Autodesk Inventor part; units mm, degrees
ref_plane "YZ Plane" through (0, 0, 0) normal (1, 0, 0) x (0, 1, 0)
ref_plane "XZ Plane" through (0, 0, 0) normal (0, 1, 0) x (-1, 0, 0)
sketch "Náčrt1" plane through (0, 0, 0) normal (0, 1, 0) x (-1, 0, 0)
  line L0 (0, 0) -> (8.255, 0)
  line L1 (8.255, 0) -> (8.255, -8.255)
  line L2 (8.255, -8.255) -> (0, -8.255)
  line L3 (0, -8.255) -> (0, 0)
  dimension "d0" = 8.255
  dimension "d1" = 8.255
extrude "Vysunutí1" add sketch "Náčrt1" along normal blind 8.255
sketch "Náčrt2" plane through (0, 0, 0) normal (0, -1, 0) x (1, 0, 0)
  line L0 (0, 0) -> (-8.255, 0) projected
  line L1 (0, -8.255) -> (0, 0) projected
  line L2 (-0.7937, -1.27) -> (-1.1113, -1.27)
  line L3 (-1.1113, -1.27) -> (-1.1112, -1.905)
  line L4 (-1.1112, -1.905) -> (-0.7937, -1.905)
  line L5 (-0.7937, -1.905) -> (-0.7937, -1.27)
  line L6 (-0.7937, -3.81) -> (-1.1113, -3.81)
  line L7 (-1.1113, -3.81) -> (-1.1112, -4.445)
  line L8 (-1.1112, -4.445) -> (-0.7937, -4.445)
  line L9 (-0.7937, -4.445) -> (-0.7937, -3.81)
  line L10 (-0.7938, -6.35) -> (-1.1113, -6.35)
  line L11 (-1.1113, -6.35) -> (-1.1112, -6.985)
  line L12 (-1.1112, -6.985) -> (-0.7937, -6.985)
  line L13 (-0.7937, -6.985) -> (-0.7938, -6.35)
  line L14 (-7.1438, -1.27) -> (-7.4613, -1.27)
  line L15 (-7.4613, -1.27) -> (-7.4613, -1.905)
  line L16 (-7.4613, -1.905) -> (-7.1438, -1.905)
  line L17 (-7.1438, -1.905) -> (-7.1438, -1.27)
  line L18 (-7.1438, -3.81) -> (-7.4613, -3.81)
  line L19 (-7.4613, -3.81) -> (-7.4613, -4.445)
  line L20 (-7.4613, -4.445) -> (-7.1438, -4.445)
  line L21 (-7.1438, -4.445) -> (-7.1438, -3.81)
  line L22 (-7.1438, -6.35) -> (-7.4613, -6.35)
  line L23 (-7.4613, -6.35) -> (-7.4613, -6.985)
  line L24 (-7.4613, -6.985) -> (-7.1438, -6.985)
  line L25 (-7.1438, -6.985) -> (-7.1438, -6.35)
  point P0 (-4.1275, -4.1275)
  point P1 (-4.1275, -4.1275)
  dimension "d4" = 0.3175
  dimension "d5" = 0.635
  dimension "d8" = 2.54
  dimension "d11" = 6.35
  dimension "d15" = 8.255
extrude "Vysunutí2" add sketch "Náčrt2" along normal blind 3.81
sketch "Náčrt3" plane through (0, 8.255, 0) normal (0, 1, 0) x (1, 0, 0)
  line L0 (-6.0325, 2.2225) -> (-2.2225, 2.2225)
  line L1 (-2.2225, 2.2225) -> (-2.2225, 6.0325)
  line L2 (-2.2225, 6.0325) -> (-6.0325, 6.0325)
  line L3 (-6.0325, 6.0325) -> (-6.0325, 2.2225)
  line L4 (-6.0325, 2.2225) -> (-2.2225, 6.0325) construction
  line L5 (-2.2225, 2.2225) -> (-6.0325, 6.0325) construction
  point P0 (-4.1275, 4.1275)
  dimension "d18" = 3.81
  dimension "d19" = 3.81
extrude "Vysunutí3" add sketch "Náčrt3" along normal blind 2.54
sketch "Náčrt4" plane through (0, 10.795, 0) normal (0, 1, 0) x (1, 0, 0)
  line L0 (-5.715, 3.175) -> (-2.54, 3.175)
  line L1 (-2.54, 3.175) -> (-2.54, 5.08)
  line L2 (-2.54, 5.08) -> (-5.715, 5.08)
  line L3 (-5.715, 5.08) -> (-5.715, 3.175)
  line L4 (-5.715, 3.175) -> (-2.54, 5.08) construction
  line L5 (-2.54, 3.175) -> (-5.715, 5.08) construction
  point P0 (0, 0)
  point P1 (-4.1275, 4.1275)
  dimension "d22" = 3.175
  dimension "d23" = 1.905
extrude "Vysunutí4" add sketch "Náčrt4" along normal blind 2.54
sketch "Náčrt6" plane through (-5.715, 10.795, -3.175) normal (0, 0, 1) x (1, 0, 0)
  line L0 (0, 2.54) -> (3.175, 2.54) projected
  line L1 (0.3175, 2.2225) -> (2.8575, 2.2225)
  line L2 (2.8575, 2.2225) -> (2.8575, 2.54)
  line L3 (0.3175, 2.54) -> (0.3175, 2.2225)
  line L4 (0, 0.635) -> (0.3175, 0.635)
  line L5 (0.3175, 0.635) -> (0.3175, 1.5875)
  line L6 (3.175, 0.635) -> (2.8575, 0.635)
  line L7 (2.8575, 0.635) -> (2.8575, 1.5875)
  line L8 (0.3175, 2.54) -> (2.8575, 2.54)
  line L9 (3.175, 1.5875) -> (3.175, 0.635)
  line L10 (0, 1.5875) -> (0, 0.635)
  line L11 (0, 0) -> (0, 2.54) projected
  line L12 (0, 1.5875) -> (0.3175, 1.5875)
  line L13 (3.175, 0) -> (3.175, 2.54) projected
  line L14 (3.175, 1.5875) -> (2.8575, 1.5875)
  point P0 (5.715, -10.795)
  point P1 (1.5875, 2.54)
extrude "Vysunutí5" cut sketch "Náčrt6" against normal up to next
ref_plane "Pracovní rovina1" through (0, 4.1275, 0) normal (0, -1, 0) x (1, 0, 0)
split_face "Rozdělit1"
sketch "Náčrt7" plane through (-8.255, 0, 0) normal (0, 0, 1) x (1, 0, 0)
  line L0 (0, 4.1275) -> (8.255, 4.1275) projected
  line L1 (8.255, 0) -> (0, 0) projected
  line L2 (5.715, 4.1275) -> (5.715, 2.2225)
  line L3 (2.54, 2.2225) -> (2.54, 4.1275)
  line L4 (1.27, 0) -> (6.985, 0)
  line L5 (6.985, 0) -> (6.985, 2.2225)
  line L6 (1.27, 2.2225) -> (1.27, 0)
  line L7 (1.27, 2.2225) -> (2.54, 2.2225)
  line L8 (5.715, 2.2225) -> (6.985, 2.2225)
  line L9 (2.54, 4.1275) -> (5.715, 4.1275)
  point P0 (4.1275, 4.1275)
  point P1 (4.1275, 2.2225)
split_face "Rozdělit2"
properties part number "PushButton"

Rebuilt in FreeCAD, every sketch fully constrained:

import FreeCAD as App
import Part
import Sketcher
Q = App.Units.Quantity

doc = App.newDocument("Part")
body = doc.addObject("PartDesign::Body", "Body")

# Sketch on XZ plane
sketch1 = body.newObject("Sketcher::SketchObject", "Sketch")
sketch1.AttachmentSupport = (doc.getObject("XZ_Plane"), [""])
sketch1.MapMode = "FlatFace"
sketch1.addGeometry(Part.LineSegment(App.Vector(-8, 0, 0), App.Vector(0, 0, 0)), False)
sketch1.addGeometry(Part.LineSegment(App.Vector(0, 0, 0), App.Vector(0, -8, 0)), False)
sketch1.addGeometry(Part.LineSegment(App.Vector(0, -8, 0), App.Vector(-8, -8, 0)), False)
sketch1.addGeometry(Part.LineSegment(App.Vector(-8, -8, 0), App.Vector(-8, 0, 0)), False)
sketch1.addConstraint(Sketcher.Constraint("Coincident", 0, 2, 1, 1))
sketch1.addConstraint(Sketcher.Constraint("Coincident", 1, 2, 2, 1))
sketch1.addConstraint(Sketcher.Constraint("Coincident", 2, 2, 3, 1))
sketch1.addConstraint(Sketcher.Constraint("Coincident", 3, 2, 0, 1))
sketch1.addConstraint(Sketcher.Constraint("Horizontal", 0))
sketch1.addConstraint(Sketcher.Constraint("Vertical", 1))
sketch1.addConstraint(Sketcher.Constraint("Horizontal", 2))
sketch1.addConstraint(Sketcher.Constraint("Vertical", 3))
sketch1.addConstraint(Sketcher.Constraint("Coincident", 0, 2, -1, 1))
sketch1.addConstraint(Sketcher.Constraint("Equal", 2, 1))
sketch1.addConstraint(Sketcher.Constraint("DistanceX", 0, 1, 0, 2, Q("0.325 in")))
pad1 = body.newObject("PartDesign::Pad", "Pad")
pad1.Profile = sketch1
pad1.Length = Q("0.325 in")
pad1.Reversed = True

# Sketch on XZ plane
sketch2 = body.newObject("Sketcher::SketchObject", "Sketch001")
sketch2.AttachmentSupport = (doc.getObject("XZ_Plane"), [""])
sketch2.MapMode = "FlatFace"
sketch2.addGeometry(Part.LineSegment(App.Vector(-0.79, -1.91, 0), App.Vector(-0.79, -1.27, 0)), False)
sketch2.addGeometry(Part.LineSegment(App.Vector(-0.79, -1.27, 0), App.Vector(-1.11, -1.27, 0)), False)
sketch2.addGeometry(Part.LineSegment(App.Vector(-1.11, -1.27, 0), App.Vector(-1.11, -1.91, 0)), False)
sketch2.addGeometry(Part.LineSegment(App.Vector(-1.11, -1.91, 0), App.Vector(-0.79, -1.91, 0)), False)
sketch2.addGeometry(Part.LineSegment(App.Vector(-0.79, -4.45, 0), App.Vector(-0.79, -3.81, 0)), False)
sketch2.addGeometry(Part.LineSegment(App.Vector(-0.79, -3.81, 0), App.Vector(-1.11, -3.81, 0)), False)
sketch2.addGeometry(Part.LineSegment(App.Vector(-1.11, -3.81, 0), App.Vector(-1.11, -4.45, 0)), False)
sketch2.addGeometry(Part.LineSegment(App.Vector(-1.11, -4.45, 0), App.Vector(-0.79, -4.45, 0)), False)
sketch2.addGeometry(Part.LineSegment(App.Vector(-0.79, -6.99, 0), App.Vector(-0.79, -6.35, 0)), False)
sketch2.addGeometry(Part.LineSegment(App.Vector(-0.79, -6.35, 0), App.Vector(-1.11, -6.35, 0)), False)
sketch2.addGeometry(Part.LineSegment(App.Vector(-1.11, -6.35, 0), App.Vector(-1.11, -6.99, 0)), False)
sketch2.addGeometry(Part.LineSegment(App.Vector(-1.11, -6.99, 0), App.Vector(-0.79, -6.99, 0)), False)
sketch2.addGeometry(Part.LineSegment(App.Vector(-7.14, -1.91, 0), App.Vector(-7.14, -1.27, 0)), False)
sketch2.addGeometry(Part.LineSegment(App.Vector(-7.14, -1.27, 0), App.Vector(-7.46, -1.27, 0)), False)
sketch2.addGeometry(Part.LineSegment(App.Vector(-7.46, -1.27, 0), App.Vector(-7.46, -1.91, 0)), False)
sketch2.addGeometry(Part.LineSegment(App.Vector(-7.46, -1.91, 0), App.Vector(-7.14, -1.91, 0)), False)
sketch2.addGeometry(Part.LineSegment(App.Vector(-7.14, -4.45, 0), App.Vector(-7.14, -3.81, 0)), False)
sketch2.addGeometry(Part.LineSegment(App.Vector(-7.14, -3.81, 0), App.Vector(-7.46, -3.81, 0)), False)
sketch2.addGeometry(Part.LineSegment(App.Vector(-7.46, -3.81, 0), App.Vector(-7.46, -4.45, 0)), False)
sketch2.addGeometry(Part.LineSegment(App.Vector(-7.46, -4.45, 0), App.Vector(-7.14, -4.45, 0)), False)
sketch2.addGeometry(Part.LineSegment(App.Vector(-7.14, -6.99, 0), App.Vector(-7.14, -6.35, 0)), False)
sketch2.addGeometry(Part.LineSegment(App.Vector(-7.14, -6.35, 0), App.Vector(-7.46, -6.35, 0)), False)
sketch2.addGeometry(Part.LineSegment(App.Vector(-7.46, -6.35, 0), App.Vector(-7.46, -6.99, 0)), False)
sketch2.addGeometry(Part.LineSegment(App.Vector(-7.46, -6.99, 0), App.Vector(-7.14, -6.99, 0)), False)
sketch2.addConstraint(Sketcher.Constraint("Coincident", 0, 2, 1, 1))
sketch2.addConstraint(Sketcher.Constraint("Coincident", 1, 2, 2, 1))
sketch2.addConstraint(Sketcher.Constraint("Coincident", 2, 2, 3, 1))
sketch2.addConstraint(Sketcher.Constraint("Coincident", 3, 2, 0, 1))
sketch2.addConstraint(Sketcher.Constraint("Coincident", 4, 2, 5, 1))
sketch2.addConstraint(Sketcher.Constraint("Coincident", 5, 2, 6, 1))
sketch2.addConstraint(Sketcher.Constraint("Coincident", 6, 2, 7, 1))
sketch2.addConstraint(Sketcher.Constraint("Coincident", 7, 2, 4, 1))
sketch2.addConstraint(Sketcher.Constraint("Coincident", 8, 2, 9, 1))
sketch2.addConstraint(Sketcher.Constraint("Coincident", 9, 2, 10, 1))
sketch2.addConstraint(Sketcher.Constraint("Coincident", 10, 2, 11, 1))
sketch2.addConstraint(Sketcher.Constraint("Coincident", 11, 2, 8, 1))
sketch2.addConstraint(Sketcher.Constraint("Coincident", 12, 2, 13, 1))
sketch2.addConstraint(Sketcher.Constraint("Coincident", 13, 2, 14, 1))
sketch2.addConstraint(Sketcher.Constraint("Coincident", 14, 2, 15, 1))
sketch2.addConstraint(Sketcher.Constraint("Coincident", 15, 2, 12, 1))
sketch2.addConstraint(Sketcher.Constraint("Coincident", 16, 2, 17, 1))
sketch2.addConstraint(Sketcher.Constraint("Coincident", 17, 2, 18, 1))
sketch2.addConstraint(Sketcher.Constraint("Coincident", 18, 2, 19, 1))
sketch2.addConstraint(Sketcher.Constraint("Coincident", 19, 2, 16, 1))
sketch2.addConstraint(Sketcher.Constraint("Coincident", 20, 2, 21, 1))
sketch2.addConstraint(Sketcher.Constraint("Coincident", 21, 2, 22, 1))
sketch2.addConstraint(Sketcher.Constraint("Coincident", 22, 2, 23, 1))
sketch2.addConstraint(Sketcher.Constraint("Coincident", 23, 2, 20, 1))
sketch2.addConstraint(Sketcher.Constraint("Vertical", 0))
sketch2.addConstraint(Sketcher.Constraint("Horizontal", 1))
sketch2.addConstraint(Sketcher.Constraint("Vertical", 2))
sketch2.addConstraint(Sketcher.Constraint("Horizontal", 3))
sketch2.addConstraint(Sketcher.Constraint("Vertical", 4))
sketch2.addConstraint(Sketcher.Constraint("Horizontal", 5))
sketch2.addConstraint(Sketcher.Constraint("Vertical", 6))
sketch2.addConstraint(Sketcher.Constraint("Horizontal", 7))
sketch2.addConstraint(Sketcher.Constraint("Vertical", 8))
sketch2.addConstraint(Sketcher.Constraint("Horizontal", 9))
sketch2.addConstraint(Sketcher.Constraint("Vertical", 10))
sketch2.addConstraint(Sketcher.Constraint("Horizontal", 11))
sketch2.addConstraint(Sketcher.Constraint("Vertical", 12))
sketch2.addConstraint(Sketcher.Constraint("Horizontal", 13))
sketch2.addConstraint(Sketcher.Constraint("Vertical", 14))
sketch2.addConstraint(Sketcher.Constraint("Horizontal", 15))
sketch2.addConstraint(Sketcher.Constraint("Vertical", 16))
sketch2.addConstraint(Sketcher.Constraint("Horizontal", 17))
sketch2.addConstraint(Sketcher.Constraint("Vertical", 18))
sketch2.addConstraint(Sketcher.Constraint("Horizontal", 19))
sketch2.addConstraint(Sketcher.Constraint("Vertical", 20))
sketch2.addConstraint(Sketcher.Constraint("Horizontal", 21))
sketch2.addConstraint(Sketcher.Constraint("Vertical", 22))
sketch2.addConstraint(Sketcher.Constraint("Horizontal", 23))
sketch2.addConstraint(Sketcher.Constraint("Horizontal", 1, 2, 12, 2))
sketch2.addConstraint(Sketcher.Constraint("Horizontal", 3, 2, 14, 2))
sketch2.addConstraint(Sketcher.Constraint("Horizontal", 5, 2, 16, 2))
sketch2.addConstraint(Sketcher.Constraint("Horizontal", 7, 2, 18, 2))
sketch2.addConstraint(Sketcher.Constraint("Horizontal", 9, 2, 20, 2))
sketch2.addConstraint(Sketcher.Constraint("Horizontal", 11, 2, 22, 2))
sketch2.addConstraint(Sketcher.Constraint("Vertical", 3, 2, 4, 2))
sketch2.addConstraint(Sketcher.Constraint("Vertical", 2, 2, 5, 2))
sketch2.addConstraint(Sketcher.Constraint("Vertical", 7, 2, 8, 2))
sketch2.addConstraint(Sketcher.Constraint("Vertical", 6, 2, 9, 2))
sketch2.addConstraint(Sketcher.Constraint("Vertical", 15, 2, 16, 2))
sketch2.addConstraint(Sketcher.Constraint("Vertical", 14, 2, 17, 2))
sketch2.addConstraint(Sketcher.Constraint("Vertical", 19, 2, 20, 2))
sketch2.addConstraint(Sketcher.Constraint("Vertical", 18, 2, 21, 2))
sketch2.addConstraint(Sketcher.Constraint("Equal", 11, 13))
sketch2.addConstraint(Sketcher.Constraint("Equal", 2, 4))
sketch2.addConstraint(Sketcher.Constraint("Equal", 6, 8))
sketch2.addConstraint(Sketcher.Constraint("DistanceY", 4, 2, 0, 2, Q("0.1 in")))
sketch2.addConstraint(Sketcher.Constraint("DistanceY", 8, 2, 4, 2, Q("0.1 in")))
sketch2.addConstraint(Sketcher.Constraint("DistanceY", 0, 1, 0, 2, Q("0.025 in")))
sketch2.addConstraint(Sketcher.Constraint("DistanceY", 8, 2, -1, 1, Q("0.25 in")))
sketch2.addConstraint(Sketcher.Constraint("DistanceX", 12, 2, 0, 2, Q("0.25 in")))
sketch2.addConstraint(Sketcher.Constraint("DistanceX", 1, 2, 1, 1, Q("0.0125 in")))
sketch2.addConstraint(Sketcher.Constraint("DistanceX", 0, 2, -1, 1, Q("0.031248 in")))
pad2 = body.newObject("PartDesign::Pad", "Pad001")
pad2.Profile = sketch2
pad2.Length = Q("0.15 in")

# Sketch on XZ plane
sketch3 = body.newObject("Sketcher::SketchObject", "Sketch002")
sketch3.AttachmentSupport = (doc.getObject("XZ_Plane"), [""])
sketch3.MapMode = "FlatFace"
sketch3.AttachmentOffset = App.Placement(App.Vector(0, 0, -0.325 * 25.4), App.Rotation())
sketch3.addGeometry(Part.LineSegment(App.Vector(-6, -6, 0), App.Vector(-6, -2.2, 0)), False)
sketch3.addGeometry(Part.LineSegment(App.Vector(-6, -2.2, 0), App.Vector(-2.2, -2.2, 0)), False)
sketch3.addGeometry(Part.LineSegment(App.Vector(-2.2, -2.2, 0), App.Vector(-2.2, -6, 0)), False)
sketch3.addGeometry(Part.LineSegment(App.Vector(-2.2, -6, 0), App.Vector(-6, -6, 0)), False)
sketch3.addConstraint(Sketcher.Constraint("Coincident", 0, 2, 1, 1))
sketch3.addConstraint(Sketcher.Constraint("Coincident", 1, 2, 2, 1))
sketch3.addConstraint(Sketcher.Constraint("Coincident", 2, 2, 3, 1))
sketch3.addConstraint(Sketcher.Constraint("Coincident", 3, 2, 0, 1))
sketch3.addConstraint(Sketcher.Constraint("Vertical", 0))
sketch3.addConstraint(Sketcher.Constraint("Horizontal", 1))
sketch3.addConstraint(Sketcher.Constraint("Vertical", 2))
sketch3.addConstraint(Sketcher.Constraint("Horizontal", 3))
sketch3.addConstraint(Sketcher.Constraint("Equal", 3, 0))
sketch3.addConstraint(Sketcher.Constraint("DistanceX", 1, 1, 1, 2, Q("0.15 in")))
sketch3.addConstraint(Sketcher.Constraint("DistanceX", 0, 2, -1, 1, Q("0.2375 in")))
sketch3.addConstraint(Sketcher.Constraint("DistanceY", 0, 2, -1, 1, Q("0.0875 in")))
pad3 = body.newObject("PartDesign::Pad", "Pad002")
pad3.Profile = sketch3
pad3.Length = Q("0.1 in")
pad3.Reversed = True

# Sketch on XZ plane
sketch4 = body.newObject("Sketcher::SketchObject", "Sketch003")
sketch4.AttachmentSupport = (doc.getObject("XZ_Plane"), [""])
sketch4.MapMode = "FlatFace"
sketch4.AttachmentOffset = App.Placement(App.Vector(0, 0, -0.425 * 25.4), App.Rotation())
sketch4.addGeometry(Part.LineSegment(App.Vector(-5.7, -5.1, 0), App.Vector(-5.7, -3.2, 0)), False)
sketch4.addGeometry(Part.LineSegment(App.Vector(-5.7, -3.2, 0), App.Vector(-2.5, -3.2, 0)), False)
sketch4.addGeometry(Part.LineSegment(App.Vector(-2.5, -3.2, 0), App.Vector(-2.5, -5.1, 0)), False)
sketch4.addGeometry(Part.LineSegment(App.Vector(-2.5, -5.1, 0), App.Vector(-5.7, -5.1, 0)), False)
sketch4.addConstraint(Sketcher.Constraint("Coincident", 0, 2, 1, 1))
sketch4.addConstraint(Sketcher.Constraint("Coincident", 1, 2, 2, 1))
sketch4.addConstraint(Sketcher.Constraint("Coincident", 2, 2, 3, 1))
sketch4.addConstraint(Sketcher.Constraint("Coincident", 3, 2, 0, 1))
sketch4.addConstraint(Sketcher.Constraint("Vertical", 0))
sketch4.addConstraint(Sketcher.Constraint("Horizontal", 1))
sketch4.addConstraint(Sketcher.Constraint("Vertical", 2))
sketch4.addConstraint(Sketcher.Constraint("Horizontal", 3))
sketch4.addConstraint(Sketcher.Constraint("DistanceX", 1, 1, 1, 2, Q("0.125 in")))
sketch4.addConstraint(Sketcher.Constraint("DistanceY", 0, 1, 0, 2, Q("0.075 in")))
sketch4.addConstraint(Sketcher.Constraint("DistanceY", 0, 2, -1, 1, Q("0.125 in")))
sketch4.addConstraint(Sketcher.Constraint("DistanceX", 1, 2, -1, 1, Q("0.1 in")))
pad4 = body.newObject("PartDesign::Pad", "Pad003")
pad4.Profile = sketch4
pad4.Length = Q("0.1 in")
pad4.Reversed = True

# Sketch on XY plane
sketch5 = body.newObject("Sketcher::SketchObject", "Sketch004")
sketch5.AttachmentSupport = (doc.getObject("XY_Plane"), [""])
sketch5.MapMode = "FlatFace"
sketch5.AttachmentOffset = App.Placement(App.Vector(0, 0, -0.125 * 25.4), App.Rotation())
sketch5.addGeometry(Part.LineSegment(App.Vector(-2.54, 11.43, 0), App.Vector(-2.54, 12.38, 0)), False)
sketch5.addGeometry(Part.LineSegment(App.Vector(-2.54, 12.38, 0), App.Vector(-2.86, 12.38, 0)), False)
sketch5.addGeometry(Part.LineSegment(App.Vector(-2.86, 12.38, 0), App.Vector(-2.86, 11.43, 0)), False)
sketch5.addGeometry(Part.LineSegment(App.Vector(-2.86, 11.43, 0), App.Vector(-2.54, 11.43, 0)), False)
sketch5.addGeometry(Part.LineSegment(App.Vector(-2.86, 13.34, 0), App.Vector(-5.4, 13.34, 0)), False)
sketch5.addGeometry(Part.LineSegment(App.Vector(-5.4, 13.34, 0), App.Vector(-5.4, 13.02, 0)), False)
sketch5.addGeometry(Part.LineSegment(App.Vector(-5.4, 13.02, 0), App.Vector(-2.86, 13.02, 0)), False)
sketch5.addGeometry(Part.LineSegment(App.Vector(-2.86, 13.02, 0), App.Vector(-2.86, 13.34, 0)), False)
sketch5.addGeometry(Part.LineSegment(App.Vector(-5.4, 12.38, 0), App.Vector(-5.71, 12.38, 0)), False)
sketch5.addGeometry(Part.LineSegment(App.Vector(-5.71, 12.38, 0), App.Vector(-5.71, 11.43, 0)), False)
sketch5.addGeometry(Part.LineSegment(App.Vector(-5.71, 11.43, 0), App.Vector(-5.4, 11.43, 0)), False)
sketch5.addGeometry(Part.LineSegment(App.Vector(-5.4, 11.43, 0), App.Vector(-5.4, 12.38, 0)), False)
sketch5.addConstraint(Sketcher.Constraint("Coincident", 0, 2, 1, 1))
sketch5.addConstraint(Sketcher.Constraint("Coincident", 1, 2, 2, 1))
sketch5.addConstraint(Sketcher.Constraint("Coincident", 2, 2, 3, 1))
sketch5.addConstraint(Sketcher.Constraint("Coincident", 3, 2, 0, 1))
sketch5.addConstraint(Sketcher.Constraint("Coincident", 4, 2, 5, 1))
sketch5.addConstraint(Sketcher.Constraint("Coincident", 5, 2, 6, 1))
sketch5.addConstraint(Sketcher.Constraint("Coincident", 6, 2, 7, 1))
sketch5.addConstraint(Sketcher.Constraint("Coincident", 7, 2, 4, 1))
sketch5.addConstraint(Sketcher.Constraint("Coincident", 8, 2, 9, 1))
sketch5.addConstraint(Sketcher.Constraint("Coincident", 9, 2, 10, 1))
sketch5.addConstraint(Sketcher.Constraint("Coincident", 10, 2, 11, 1))
sketch5.addConstraint(Sketcher.Constraint("Coincident", 11, 2, 8, 1))
sketch5.addConstraint(Sketcher.Constraint("Vertical", 0))
sketch5.addConstraint(Sketcher.Constraint("Horizontal", 1))
sketch5.addConstraint(Sketcher.Constraint("Vertical", 2))
sketch5.addConstraint(Sketcher.Constraint("Horizontal", 3))
sketch5.addConstraint(Sketcher.Constraint("Horizontal", 4))
sketch5.addConstraint(Sketcher.Constraint("Vertical", 5))
sketch5.addConstraint(Sketcher.Constraint("Horizontal", 6))
sketch5.addConstraint(Sketcher.Constraint("Vertical", 7))
sketch5.addConstraint(Sketcher.Constraint("Horizontal", 8))
sketch5.addConstraint(Sketcher.Constraint("Vertical", 9))
sketch5.addConstraint(Sketcher.Constraint("Horizontal", 10))
sketch5.addConstraint(Sketcher.Constraint("Vertical", 11))
sketch5.addConstraint(Sketcher.Constraint("Horizontal", 1, 2, 8, 2))
sketch5.addConstraint(Sketcher.Constraint("Horizontal", 3, 2, 9, 2))
sketch5.addConstraint(Sketcher.Constraint("Vertical", 2, 2, 6, 2))
sketch5.addConstraint(Sketcher.Constraint("Vertical", 5, 2, 10, 2))
sketch5.addConstraint(Sketcher.Constraint("Equal", 3, 8))
sketch5.addConstraint(Sketcher.Constraint("Equal", 10, 5))
sketch5.addConstraint(Sketcher.Constraint("DistanceX", 4, 2, 4, 1, Q("0.1 in")))
sketch5.addConstraint(Sketcher.Constraint("DistanceX", 0, 2, -1, 1, Q("0.1 in")))
sketch5.addConstraint(Sketcher.Constraint("DistanceY", -1, 1, 2, 2, Q("0.45 in")))
sketch5.addConstraint(Sketcher.Constraint("DistanceX", 1, 2, 1, 1, Q("0.0125 in")))
sketch5.addConstraint(Sketcher.Constraint("DistanceY", 0, 1, 0, 2, Q("0.0375 in")))
sketch5.addConstraint(Sketcher.Constraint("DistanceY", -1, 1, 4, 2, Q("0.525 in")))
pocket1 = body.newObject("PartDesign::Pocket", "Pocket")
pocket1.Profile = sketch5
pocket1.Type = "UpToFirst"

doc.recompute()
